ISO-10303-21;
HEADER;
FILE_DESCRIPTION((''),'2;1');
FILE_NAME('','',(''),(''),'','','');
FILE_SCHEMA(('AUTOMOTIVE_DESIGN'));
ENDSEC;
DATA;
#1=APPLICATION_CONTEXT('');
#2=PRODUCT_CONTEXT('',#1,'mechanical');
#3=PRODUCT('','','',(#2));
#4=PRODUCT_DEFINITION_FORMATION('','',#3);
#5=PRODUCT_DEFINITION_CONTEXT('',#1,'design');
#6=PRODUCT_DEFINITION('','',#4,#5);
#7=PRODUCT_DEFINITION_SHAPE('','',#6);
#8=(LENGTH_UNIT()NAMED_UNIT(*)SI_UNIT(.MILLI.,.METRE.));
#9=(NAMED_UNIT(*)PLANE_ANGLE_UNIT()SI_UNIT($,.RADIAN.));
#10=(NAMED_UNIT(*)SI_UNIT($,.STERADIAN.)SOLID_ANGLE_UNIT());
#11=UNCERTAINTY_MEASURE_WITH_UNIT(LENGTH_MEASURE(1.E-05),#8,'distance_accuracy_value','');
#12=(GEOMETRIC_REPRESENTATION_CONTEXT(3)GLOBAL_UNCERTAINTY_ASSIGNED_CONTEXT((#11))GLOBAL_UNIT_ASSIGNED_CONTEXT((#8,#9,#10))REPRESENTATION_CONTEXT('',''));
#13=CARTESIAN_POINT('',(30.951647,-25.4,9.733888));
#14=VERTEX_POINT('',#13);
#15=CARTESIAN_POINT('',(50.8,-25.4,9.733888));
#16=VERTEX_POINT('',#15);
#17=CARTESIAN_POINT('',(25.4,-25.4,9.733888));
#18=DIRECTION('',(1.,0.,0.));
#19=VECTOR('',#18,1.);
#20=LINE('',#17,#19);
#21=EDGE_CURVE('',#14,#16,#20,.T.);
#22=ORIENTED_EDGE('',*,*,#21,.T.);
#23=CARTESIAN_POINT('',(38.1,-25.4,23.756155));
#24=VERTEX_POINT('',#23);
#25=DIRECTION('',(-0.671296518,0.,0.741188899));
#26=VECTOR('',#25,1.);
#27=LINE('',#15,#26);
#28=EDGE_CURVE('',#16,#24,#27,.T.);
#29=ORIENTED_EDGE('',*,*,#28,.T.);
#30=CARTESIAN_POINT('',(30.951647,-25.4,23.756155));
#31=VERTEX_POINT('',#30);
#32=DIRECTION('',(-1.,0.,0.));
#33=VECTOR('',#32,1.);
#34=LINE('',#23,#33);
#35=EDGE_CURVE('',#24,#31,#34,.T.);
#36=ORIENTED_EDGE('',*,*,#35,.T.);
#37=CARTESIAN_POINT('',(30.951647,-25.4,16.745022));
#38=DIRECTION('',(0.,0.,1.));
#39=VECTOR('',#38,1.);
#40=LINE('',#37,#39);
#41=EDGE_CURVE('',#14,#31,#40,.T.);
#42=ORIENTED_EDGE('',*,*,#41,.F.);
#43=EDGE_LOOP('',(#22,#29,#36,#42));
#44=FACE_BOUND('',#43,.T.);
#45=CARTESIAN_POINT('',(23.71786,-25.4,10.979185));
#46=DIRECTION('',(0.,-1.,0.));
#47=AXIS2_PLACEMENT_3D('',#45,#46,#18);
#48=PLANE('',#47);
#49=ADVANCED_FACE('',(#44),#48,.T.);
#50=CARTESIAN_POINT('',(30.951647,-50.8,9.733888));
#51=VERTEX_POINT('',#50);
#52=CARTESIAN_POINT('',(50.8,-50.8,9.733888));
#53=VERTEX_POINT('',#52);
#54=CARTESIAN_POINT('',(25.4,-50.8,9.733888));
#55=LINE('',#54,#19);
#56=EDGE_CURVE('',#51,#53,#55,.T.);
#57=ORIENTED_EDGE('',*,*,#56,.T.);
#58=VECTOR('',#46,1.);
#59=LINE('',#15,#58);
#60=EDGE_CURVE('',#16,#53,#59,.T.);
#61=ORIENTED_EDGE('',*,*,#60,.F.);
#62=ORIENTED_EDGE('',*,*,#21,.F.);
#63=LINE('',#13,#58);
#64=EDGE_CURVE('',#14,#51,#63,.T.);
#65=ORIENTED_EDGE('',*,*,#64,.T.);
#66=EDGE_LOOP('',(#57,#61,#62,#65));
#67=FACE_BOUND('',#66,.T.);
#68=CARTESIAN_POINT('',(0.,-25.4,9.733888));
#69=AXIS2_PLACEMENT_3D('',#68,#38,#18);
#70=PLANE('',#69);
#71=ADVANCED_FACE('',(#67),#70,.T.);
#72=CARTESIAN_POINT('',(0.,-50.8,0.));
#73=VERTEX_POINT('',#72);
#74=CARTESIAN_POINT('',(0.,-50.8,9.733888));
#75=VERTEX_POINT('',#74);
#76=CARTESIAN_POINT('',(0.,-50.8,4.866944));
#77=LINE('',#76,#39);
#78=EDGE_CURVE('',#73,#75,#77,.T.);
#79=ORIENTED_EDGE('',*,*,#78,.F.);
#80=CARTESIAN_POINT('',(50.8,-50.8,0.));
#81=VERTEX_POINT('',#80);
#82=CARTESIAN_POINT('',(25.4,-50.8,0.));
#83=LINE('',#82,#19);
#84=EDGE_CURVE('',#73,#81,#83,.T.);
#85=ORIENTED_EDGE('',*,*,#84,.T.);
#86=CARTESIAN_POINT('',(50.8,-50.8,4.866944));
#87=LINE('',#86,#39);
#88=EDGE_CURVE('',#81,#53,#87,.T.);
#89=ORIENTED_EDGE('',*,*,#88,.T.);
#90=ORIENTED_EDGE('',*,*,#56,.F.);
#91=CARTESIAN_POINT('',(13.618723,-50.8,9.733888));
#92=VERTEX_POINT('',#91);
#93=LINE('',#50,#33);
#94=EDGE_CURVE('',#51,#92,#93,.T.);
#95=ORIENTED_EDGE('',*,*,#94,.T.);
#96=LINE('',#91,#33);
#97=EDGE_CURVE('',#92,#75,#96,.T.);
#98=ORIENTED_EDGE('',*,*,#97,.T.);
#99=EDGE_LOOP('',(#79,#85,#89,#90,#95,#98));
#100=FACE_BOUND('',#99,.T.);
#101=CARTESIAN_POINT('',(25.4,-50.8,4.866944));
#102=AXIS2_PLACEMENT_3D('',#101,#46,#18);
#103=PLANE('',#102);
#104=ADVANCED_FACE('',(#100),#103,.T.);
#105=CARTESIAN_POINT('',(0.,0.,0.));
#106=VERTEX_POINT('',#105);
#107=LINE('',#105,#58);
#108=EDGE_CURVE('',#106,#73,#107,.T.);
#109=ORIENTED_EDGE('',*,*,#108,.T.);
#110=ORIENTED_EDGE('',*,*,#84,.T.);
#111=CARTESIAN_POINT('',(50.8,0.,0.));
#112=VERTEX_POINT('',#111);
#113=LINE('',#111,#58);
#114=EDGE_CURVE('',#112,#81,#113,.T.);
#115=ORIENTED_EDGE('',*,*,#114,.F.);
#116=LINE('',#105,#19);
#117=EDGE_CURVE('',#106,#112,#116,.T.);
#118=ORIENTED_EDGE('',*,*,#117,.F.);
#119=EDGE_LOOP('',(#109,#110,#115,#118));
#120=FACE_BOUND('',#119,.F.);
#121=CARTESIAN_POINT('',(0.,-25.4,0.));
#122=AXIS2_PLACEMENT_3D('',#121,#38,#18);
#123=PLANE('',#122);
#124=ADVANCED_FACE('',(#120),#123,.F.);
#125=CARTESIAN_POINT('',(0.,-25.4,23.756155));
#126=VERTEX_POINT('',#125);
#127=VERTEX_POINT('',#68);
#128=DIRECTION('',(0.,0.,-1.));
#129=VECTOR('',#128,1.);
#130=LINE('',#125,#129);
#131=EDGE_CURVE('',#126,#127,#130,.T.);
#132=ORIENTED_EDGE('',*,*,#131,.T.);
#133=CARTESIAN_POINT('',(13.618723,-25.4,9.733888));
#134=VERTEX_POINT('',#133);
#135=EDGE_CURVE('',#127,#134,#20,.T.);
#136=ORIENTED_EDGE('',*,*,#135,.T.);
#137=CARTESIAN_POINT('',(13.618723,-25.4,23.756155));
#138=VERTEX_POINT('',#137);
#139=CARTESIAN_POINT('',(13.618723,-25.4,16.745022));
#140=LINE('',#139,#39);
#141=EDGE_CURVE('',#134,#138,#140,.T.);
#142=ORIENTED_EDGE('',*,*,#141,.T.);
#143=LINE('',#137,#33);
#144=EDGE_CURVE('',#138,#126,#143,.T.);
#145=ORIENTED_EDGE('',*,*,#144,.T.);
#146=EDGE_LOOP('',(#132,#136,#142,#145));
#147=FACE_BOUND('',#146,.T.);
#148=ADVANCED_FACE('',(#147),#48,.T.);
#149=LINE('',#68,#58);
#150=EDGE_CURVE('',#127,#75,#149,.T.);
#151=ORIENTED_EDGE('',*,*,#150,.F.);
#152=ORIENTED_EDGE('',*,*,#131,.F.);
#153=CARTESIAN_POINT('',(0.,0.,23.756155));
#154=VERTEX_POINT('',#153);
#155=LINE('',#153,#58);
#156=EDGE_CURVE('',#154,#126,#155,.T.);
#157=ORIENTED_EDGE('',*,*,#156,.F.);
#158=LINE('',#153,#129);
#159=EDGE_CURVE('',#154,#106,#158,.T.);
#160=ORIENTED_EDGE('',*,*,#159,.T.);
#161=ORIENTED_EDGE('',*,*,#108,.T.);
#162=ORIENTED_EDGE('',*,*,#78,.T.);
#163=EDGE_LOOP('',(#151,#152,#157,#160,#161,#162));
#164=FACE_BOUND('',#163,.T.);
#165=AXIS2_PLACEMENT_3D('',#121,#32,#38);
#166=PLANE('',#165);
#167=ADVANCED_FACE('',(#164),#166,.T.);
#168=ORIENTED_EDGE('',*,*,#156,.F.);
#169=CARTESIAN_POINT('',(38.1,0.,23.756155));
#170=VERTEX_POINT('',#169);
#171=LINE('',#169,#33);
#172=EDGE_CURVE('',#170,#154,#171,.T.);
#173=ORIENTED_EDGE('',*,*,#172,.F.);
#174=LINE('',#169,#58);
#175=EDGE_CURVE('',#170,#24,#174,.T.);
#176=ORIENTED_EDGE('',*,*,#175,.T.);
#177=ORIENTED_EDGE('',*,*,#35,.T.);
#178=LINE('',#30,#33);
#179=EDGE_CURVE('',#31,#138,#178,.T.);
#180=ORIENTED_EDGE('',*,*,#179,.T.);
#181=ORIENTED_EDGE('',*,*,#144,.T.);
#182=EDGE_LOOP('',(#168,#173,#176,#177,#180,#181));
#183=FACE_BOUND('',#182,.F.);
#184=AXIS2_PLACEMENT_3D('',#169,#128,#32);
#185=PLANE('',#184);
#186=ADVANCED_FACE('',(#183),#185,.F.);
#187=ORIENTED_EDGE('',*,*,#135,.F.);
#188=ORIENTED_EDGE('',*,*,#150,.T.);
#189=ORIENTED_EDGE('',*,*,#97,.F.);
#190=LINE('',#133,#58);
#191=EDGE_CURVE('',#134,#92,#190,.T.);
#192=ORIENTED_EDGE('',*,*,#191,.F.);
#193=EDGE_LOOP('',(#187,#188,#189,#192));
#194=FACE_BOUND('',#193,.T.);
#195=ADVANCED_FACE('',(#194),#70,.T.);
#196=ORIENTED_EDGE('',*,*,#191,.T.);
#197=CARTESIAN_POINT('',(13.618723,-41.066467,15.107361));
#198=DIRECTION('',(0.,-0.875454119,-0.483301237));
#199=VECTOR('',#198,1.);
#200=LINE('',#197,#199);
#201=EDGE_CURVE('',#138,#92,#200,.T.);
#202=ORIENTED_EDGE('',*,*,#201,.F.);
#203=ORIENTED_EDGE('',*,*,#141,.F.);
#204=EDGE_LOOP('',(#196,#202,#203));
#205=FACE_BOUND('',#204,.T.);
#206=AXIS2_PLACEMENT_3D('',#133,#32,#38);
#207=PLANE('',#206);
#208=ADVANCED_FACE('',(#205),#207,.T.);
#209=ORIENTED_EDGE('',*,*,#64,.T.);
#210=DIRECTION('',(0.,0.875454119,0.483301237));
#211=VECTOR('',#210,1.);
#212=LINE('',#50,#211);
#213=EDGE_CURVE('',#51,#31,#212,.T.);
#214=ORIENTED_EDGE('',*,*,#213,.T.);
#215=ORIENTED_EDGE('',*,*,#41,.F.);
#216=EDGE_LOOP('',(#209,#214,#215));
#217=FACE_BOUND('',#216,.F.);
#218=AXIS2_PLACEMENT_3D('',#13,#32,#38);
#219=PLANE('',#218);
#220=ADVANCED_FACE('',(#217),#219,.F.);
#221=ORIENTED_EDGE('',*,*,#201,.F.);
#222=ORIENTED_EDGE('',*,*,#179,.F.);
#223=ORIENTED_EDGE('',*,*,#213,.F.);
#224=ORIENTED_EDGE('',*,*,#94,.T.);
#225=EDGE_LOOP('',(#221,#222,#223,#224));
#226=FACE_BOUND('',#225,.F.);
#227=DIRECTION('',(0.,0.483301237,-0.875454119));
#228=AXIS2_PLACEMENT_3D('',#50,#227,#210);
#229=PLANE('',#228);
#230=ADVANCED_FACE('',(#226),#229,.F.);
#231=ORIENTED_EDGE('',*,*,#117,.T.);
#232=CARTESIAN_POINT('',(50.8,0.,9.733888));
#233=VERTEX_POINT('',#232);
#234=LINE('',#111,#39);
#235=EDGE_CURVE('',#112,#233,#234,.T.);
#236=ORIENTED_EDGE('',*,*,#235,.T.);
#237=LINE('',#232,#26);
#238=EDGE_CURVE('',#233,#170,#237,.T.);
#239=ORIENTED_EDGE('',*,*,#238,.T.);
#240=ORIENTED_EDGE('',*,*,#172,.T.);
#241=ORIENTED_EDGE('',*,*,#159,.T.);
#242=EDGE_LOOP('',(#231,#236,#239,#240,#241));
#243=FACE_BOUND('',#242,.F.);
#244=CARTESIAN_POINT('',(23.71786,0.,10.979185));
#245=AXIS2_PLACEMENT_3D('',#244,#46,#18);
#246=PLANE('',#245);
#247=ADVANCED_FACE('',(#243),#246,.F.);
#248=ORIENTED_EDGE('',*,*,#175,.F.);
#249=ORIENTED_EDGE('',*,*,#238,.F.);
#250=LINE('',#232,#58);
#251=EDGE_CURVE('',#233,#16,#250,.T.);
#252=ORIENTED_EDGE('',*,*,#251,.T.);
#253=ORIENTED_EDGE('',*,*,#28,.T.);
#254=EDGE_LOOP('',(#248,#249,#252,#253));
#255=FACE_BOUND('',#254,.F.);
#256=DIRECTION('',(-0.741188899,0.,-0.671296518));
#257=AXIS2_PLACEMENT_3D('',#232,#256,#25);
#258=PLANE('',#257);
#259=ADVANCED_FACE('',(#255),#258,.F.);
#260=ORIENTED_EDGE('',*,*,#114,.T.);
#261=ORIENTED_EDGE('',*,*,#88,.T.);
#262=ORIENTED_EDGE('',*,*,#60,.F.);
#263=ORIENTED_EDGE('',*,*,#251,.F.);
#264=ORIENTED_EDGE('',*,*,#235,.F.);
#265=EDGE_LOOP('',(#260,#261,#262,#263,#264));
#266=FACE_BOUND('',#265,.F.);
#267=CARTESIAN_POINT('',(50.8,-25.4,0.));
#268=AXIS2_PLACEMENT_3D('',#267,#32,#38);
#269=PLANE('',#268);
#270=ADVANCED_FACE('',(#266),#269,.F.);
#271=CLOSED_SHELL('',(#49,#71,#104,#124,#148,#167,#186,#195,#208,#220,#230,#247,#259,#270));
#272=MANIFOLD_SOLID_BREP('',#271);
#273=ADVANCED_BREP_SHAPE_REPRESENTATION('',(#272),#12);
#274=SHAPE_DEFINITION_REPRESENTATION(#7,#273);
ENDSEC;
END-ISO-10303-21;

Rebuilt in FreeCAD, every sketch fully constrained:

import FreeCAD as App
import Part
import Sketcher

V = App.Vector
Q = App.Units.Quantity


def add_polygon(sketch, points):
    """Adds a closed chain of lines whose ends are joined by coincident constraints."""
    first, n = sketch.GeometryCount, len(points)
    for a, b in zip(points, points[1:] + points[:1]):
        sketch.addGeometry(Part.LineSegment(App.Vector(*a, 0), App.Vector(*b, 0)), False)
    for i in range(n):
        sketch.addConstraint(Sketcher.Constraint("Coincident", first + i, 2, first + (i + 1) % n, 1))

doc = App.newDocument("Part")
params = doc.addObject("Spreadsheet::Sheet", "Params")
for row, (alias, value) in enumerate([
    ("sketch1_width", "2 in"),
    ("sketch1_width2", "1.5 in"),
    ("pad1_length", "1 in"),
    ("sketch2_width", "2 in"),
    ("pad2_length", "1 in"),
    ("pad3_length", "1 in"),
    ("sketch4_width", "1 in"),
    ("pocket1_length", "1 in"),
], start=1):
    params.set(f"A{row}", alias)
    params.set(f"B{row}", "=" + value)
    params.setAlias(f"B{row}", alias)

body = doc.addObject("PartDesign::Body", "Body")

sketch1 = body.newObject("Sketcher::SketchObject", "Sketch")
sketch1.AttachmentSupport = (doc.getObject("XZ_Plane"), [""])
sketch1.MapMode = "FlatFace"
add_polygon(sketch1, [(0, 24), (0, 0), (51, 0), (51, 10), (38, 24)])
sketch1.addConstraint([
    Sketcher.Constraint("Vertical", 0),
    Sketcher.Constraint("Horizontal", 1),
    Sketcher.Constraint("Vertical", 2),
    Sketcher.Constraint("Horizontal", 4),
    Sketcher.Constraint("Coincident", 0, 2, -1, 1),
    Sketcher.Constraint("DistanceX", 1, 1, 1, 2, Q("2 in")),
    Sketcher.Constraint("DistanceX", 4, 2, 4, 1, Q("1.5 in")),
    Sketcher.Constraint("DistanceY", 2, 1, 2, 2, 9.733888),
    Sketcher.Constraint("DistanceY", 0, 2, 0, 1, 23.756155),
])
sketch1.setExpression("Constraints[10]", "Params.sketch1_width")
sketch1.setExpression("Constraints[11]", "Params.sketch1_width2")
pad1 = body.newObject("PartDesign::Pad", "Pad")
pad1.Profile = sketch1
pad1.setExpression("Length", "Params.pad1_length")

sketch2 = body.newObject("Sketcher::SketchObject", "Sketch001")
sketch2.AttachmentSupport = (doc.getObject("XZ_Plane"), [""])
sketch2.MapMode = "FlatFace"
sketch2.AttachmentOffset = App.Placement(V(0, 0, 1 * 25.4), App.Rotation())
add_polygon(sketch2, [(0, 10), (0, 0), (51, 0), (51, 10)])
sketch2.addConstraint([
    Sketcher.Constraint("Vertical", 0),
    Sketcher.Constraint("Horizontal", 1),
    Sketcher.Constraint("Vertical", 2),
    Sketcher.Constraint("Horizontal", 3),
    Sketcher.Constraint("Coincident", 0, 2, -1, 1),
    Sketcher.Constraint("DistanceX", 1, 1, 1, 2, Q("2 in")),
    Sketcher.Constraint("DistanceY", 0, 2, 0, 1, 9.733888),
])
sketch2.setExpression("Constraints[9]", "Params.sketch2_width")
pad2 = body.newObject("PartDesign::Pad", "Pad001")
pad2.Profile = sketch2
pad2.setExpression("Length", "Params.pad2_length")

sketch3 = body.newObject("Sketcher::SketchObject", "Sketch002")
sketch3.AttachmentSupport = (doc.getObject("XZ_Plane"), [""])
sketch3.MapMode = "FlatFace"
sketch3.AttachmentOffset = App.Placement(V(0, 0, 1 * 25.4), App.Rotation())
add_polygon(sketch3, [(14, 24), (14, 10), (31, 10), (31, 24)])
sketch3.addConstraint([
    Sketcher.Constraint("Vertical", 0),
    Sketcher.Constraint("Horizontal", 1),
    Sketcher.Constraint("Vertical", 2),
    Sketcher.Constraint("Horizontal", 3),
    Sketcher.Constraint("DistanceX", 1, 1, 1, 2, 17.332924),
    Sketcher.Constraint("DistanceY", 0, 2, 0, 1, 14.022267),
    Sketcher.Constraint("DistanceY", -1, 1, 0, 2, 9.733888),
    Sketcher.Constraint("DistanceX", -1, 1, 0, 2, 13.618723),
])
pad3 = body.newObject("PartDesign::Pad", "Pad002")
pad3.Profile = sketch3
pad3.setExpression("Length", "Params.pad3_length")

sketch4 = body.newObject("Sketcher::SketchObject", "Sketch003")
sketch4.AttachmentSupport = (doc.getObject("YZ_Plane"), [""])
sketch4.MapMode = "FlatFace"
sketch4.AttachmentOffset = App.Placement(V(0, 0, 30.951647), App.Rotation())
add_polygon(sketch4, [(-51, 24), (-51, 10), (-25, 24)])
sketch4.addConstraint([
    Sketcher.Constraint("Vertical", 0),
    Sketcher.Constraint("Horizontal", 2),
    Sketcher.Constraint("DistanceX", 2, 2, 2, 1, Q("1 in")),
    Sketcher.Constraint("DistanceX", 0, 2, -1, 1, Q("2 in")),
    Sketcher.Constraint("DistanceY", 0, 2, 0, 1, 14.022267),
    Sketcher.Constraint("DistanceY", -1, 1, 0, 2, 9.733888),
])
sketch4.setExpression("Constraints[5]", "Params.sketch4_width")
pocket1 = body.newObject("PartDesign::Pocket", "Pocket")
pocket1.Profile = sketch4
pocket1.setExpression("Length", "Params.pocket1_length")

doc.recompute()
